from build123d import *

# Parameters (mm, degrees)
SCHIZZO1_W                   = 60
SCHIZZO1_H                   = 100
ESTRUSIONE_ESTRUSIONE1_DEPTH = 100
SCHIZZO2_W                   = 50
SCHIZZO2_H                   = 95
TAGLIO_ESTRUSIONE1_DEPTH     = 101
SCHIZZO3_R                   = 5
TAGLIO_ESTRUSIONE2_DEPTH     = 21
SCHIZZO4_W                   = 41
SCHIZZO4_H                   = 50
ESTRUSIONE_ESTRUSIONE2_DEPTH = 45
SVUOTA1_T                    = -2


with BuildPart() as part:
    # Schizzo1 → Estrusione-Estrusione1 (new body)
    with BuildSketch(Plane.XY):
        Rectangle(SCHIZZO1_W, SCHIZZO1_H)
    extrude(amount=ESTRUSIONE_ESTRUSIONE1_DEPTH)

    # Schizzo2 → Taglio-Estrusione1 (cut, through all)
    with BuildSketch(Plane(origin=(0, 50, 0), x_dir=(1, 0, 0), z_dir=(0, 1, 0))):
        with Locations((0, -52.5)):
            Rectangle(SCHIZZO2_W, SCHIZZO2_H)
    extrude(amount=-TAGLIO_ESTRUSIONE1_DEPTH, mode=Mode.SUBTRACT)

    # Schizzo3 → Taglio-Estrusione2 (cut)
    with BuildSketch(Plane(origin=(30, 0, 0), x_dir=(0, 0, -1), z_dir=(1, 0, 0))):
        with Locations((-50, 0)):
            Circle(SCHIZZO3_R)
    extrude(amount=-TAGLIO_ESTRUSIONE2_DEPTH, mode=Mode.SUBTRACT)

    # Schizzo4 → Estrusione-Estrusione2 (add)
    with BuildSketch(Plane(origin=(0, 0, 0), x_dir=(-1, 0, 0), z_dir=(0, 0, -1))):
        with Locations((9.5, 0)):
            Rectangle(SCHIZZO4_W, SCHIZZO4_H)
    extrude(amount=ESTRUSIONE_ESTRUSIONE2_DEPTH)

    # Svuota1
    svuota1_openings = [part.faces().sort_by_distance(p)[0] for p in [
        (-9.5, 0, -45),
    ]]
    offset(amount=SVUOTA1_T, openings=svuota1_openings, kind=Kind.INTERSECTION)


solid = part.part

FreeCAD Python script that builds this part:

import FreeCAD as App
import Part
import Sketcher
from FreeCAD import Vector


def faces_at(feature, points):
    """Names of the faces that lie closest to the given points."""
    faces = feature.Shape.Faces
    near = lambda p: min(range(len(faces)), key=lambda i: faces[i].distToShape(Part.Vertex(*p))[0])
    return sorted({f"Face{near(p) + 1}" for p in points})

doc = App.newDocument("Part")
params = doc.addObject("Spreadsheet::Sheet", "Params")
for row, (alias, value) in enumerate([
    ("sketch1_width", "60 mm"),
    ("sketch1_height", "100 mm"),
    ("pad1_length", "100 mm"),
    ("sketch2_width", "50 mm"),
    ("sketch2_height", "95 mm"),
    ("sketch3_diameter", "10 mm"),
    ("pocket2_length", "21 mm"),
    ("sketch4_width", "41 mm"),
    ("sketch4_height", "50 mm"),
    ("pad2_length", "45 mm"),
    ("thickness_wall", "2 mm"),
], start=1):
    params.set(f"A{row}", alias)
    params.set(f"B{row}", "=" + value)
    params.setAlias(f"B{row}", alias)

body = doc.addObject("PartDesign::Body", "Body")

sketch1 = body.newObject("Sketcher::SketchObject", "Sketch")
sketch1.AttachmentSupport = (doc.getObject("XY_Plane"), [""])
sketch1.MapMode = "FlatFace"
sketch1.addGeometry([
    Part.LineSegment(Vector(-30, 50, 0), Vector(-30, -50, 0)),
    Part.LineSegment(Vector(-30, -50, 0), Vector(30, -50, 0)),
    Part.LineSegment(Vector(30, -50, 0), Vector(30, 50, 0)),
    Part.LineSegment(Vector(30, 50, 0), Vector(-30, 50, 0)),
], False)
sketch1.addConstraint([
    Sketcher.Constraint("Coincident", 0, 2, 1, 1),
    Sketcher.Constraint("Coincident", 1, 2, 2, 1),
    Sketcher.Constraint("Coincident", 2, 2, 3, 1),
    Sketcher.Constraint("Coincident", 3, 2, 0, 1),
    Sketcher.Constraint("Vertical", 0),
    Sketcher.Constraint("Horizontal", 1),
    Sketcher.Constraint("Vertical", 2),
    Sketcher.Constraint("Horizontal", 3),
    Sketcher.Constraint("Symmetric", 0, 2, 2, 2, -1, 1),
    Sketcher.Constraint("DistanceX", 1, 1, 1, 2, 60.0),
    Sketcher.Constraint("DistanceY", 0, 2, 0, 1, 100.0),
])
sketch1.setExpression("Constraints[9]", "Params.sketch1_width")
sketch1.setExpression("Constraints[10]", "Params.sketch1_height")
pad1 = body.newObject("PartDesign::Pad", "Pad")
pad1.Profile = sketch1
pad1.setExpression("Length", "Params.pad1_length")

sketch2 = body.newObject("Sketcher::SketchObject", "Sketch001")
sketch2.AttachmentSupport = (doc.getObject("XZ_Plane"), [""])
sketch2.MapMode = "FlatFace"
sketch2.AttachmentOffset = App.Placement(Vector(0, 0, -50), App.Rotation())
sketch2.addGeometry([
    Part.LineSegment(Vector(-25, 5, 0), Vector(-25, 100, 0)),
    Part.LineSegment(Vector(-25, 100, 0), Vector(25, 100, 0)),
    Part.LineSegment(Vector(25, 100, 0), Vector(25, 5, 0)),
    Part.LineSegment(Vector(25, 5, 0), Vector(-25, 5, 0)),
], False)
sketch2.addConstraint([
    Sketcher.Constraint("Coincident", 0, 2, 1, 1),
    Sketcher.Constraint("Coincident", 1, 2, 2, 1),
    Sketcher.Constraint("Coincident", 2, 2, 3, 1),
    Sketcher.Constraint("Coincident", 3, 2, 0, 1),
    Sketcher.Constraint("Vertical", 0),
    Sketcher.Constraint("Horizontal", 1),
    Sketcher.Constraint("Vertical", 2),
    Sketcher.Constraint("Horizontal", 3),
    Sketcher.Constraint("DistanceX", 1, 1, 1, 2, 50.0),
    Sketcher.Constraint("DistanceY", 0, 1, 0, 2, 95.0),
    Sketcher.Constraint("DistanceX", 0, 2, -1, 1, 25.0),
    Sketcher.Constraint("DistanceY", -1, 1, 0, 2, 100.0),
])
sketch2.setExpression("Constraints[8]", "Params.sketch2_width")
sketch2.setExpression("Constraints[9]", "Params.sketch2_height")
pocket1 = body.newObject("PartDesign::Pocket", "Pocket")
pocket1.Profile = sketch2
pocket1.Type = "ThroughAll"
pocket1.Reversed = True

sketch3 = body.newObject("Sketcher::SketchObject", "Sketch002")
sketch3.AttachmentSupport = (doc.getObject("YZ_Plane"), [""])
sketch3.MapMode = "FlatFace"
sketch3.AttachmentOffset = App.Placement(Vector(0, 0, 30), App.Rotation())
sketch3.addGeometry(Part.Circle(Vector(0, 50, 0), Vector(0, 0, 1), 5), False)
sketch3.addConstraint([
    Sketcher.Constraint("PointOnObject", 0, 3, -2),
    Sketcher.Constraint("Diameter", 0, 10.0),
    Sketcher.Constraint("DistanceY", -1, 1, 0, 3, 50.0),
])
sketch3.setExpression("Constraints[1]", "Params.sketch3_diameter")
pocket2 = body.newObject("PartDesign::Pocket", "Pocket001")
pocket2.Profile = sketch3
pocket2.setExpression("Length", "Params.pocket2_length")

sketch4 = body.newObject("Sketcher::SketchObject", "Sketch003")
sketch4.AttachmentSupport = (doc.getObject("XY_Plane"), [""])
sketch4.MapMode = "FlatFace"
sketch4.addGeometry([
    Part.LineSegment(Vector(11, 25, 0), Vector(11, -25, 0)),
    Part.LineSegment(Vector(11, -25, 0), Vector(-30, -25, 0)),
    Part.LineSegment(Vector(-30, -25, 0), Vector(-30, 25, 0)),
    Part.LineSegment(Vector(-30, 25, 0), Vector(11, 25, 0)),
], False)
sketch4.addConstraint([
    Sketcher.Constraint("Coincident", 0, 2, 1, 1),
    Sketcher.Constraint("Coincident", 1, 2, 2, 1),
    Sketcher.Constraint("Coincident", 2, 2, 3, 1),
    Sketcher.Constraint("Coincident", 3, 2, 0, 1),
    Sketcher.Constraint("Vertical", 0),
    Sketcher.Constraint("Horizontal", 1),
    Sketcher.Constraint("Vertical", 2),
    Sketcher.Constraint("Horizontal", 3),
    Sketcher.Constraint("DistanceX", 1, 2, 1, 1, 41.0),
    Sketcher.Constraint("DistanceY", 0, 2, 0, 1, 50.0),
    Sketcher.Constraint("DistanceX", -1, 1, 0, 2, 11.0),
    Sketcher.Constraint("DistanceY", 0, 2, -1, 1, 25.0),
])
sketch4.setExpression("Constraints[8]", "Params.sketch4_width")
sketch4.setExpression("Constraints[9]", "Params.sketch4_height")
pad2 = body.newObject("PartDesign::Pad", "Pad001")
pad2.Profile = sketch4
pad2.setExpression("Length", "Params.pad2_length")
pad2.Reversed = True
doc.recompute()

thickness = body.newObject("PartDesign::Thickness", "Thickness")
thickness.Base = (pad2, faces_at(pad2, [(-9.5, 0, -45)]))
thickness.setExpression("Value", "Params.thickness_wall")
thickness.Reversed = True
thickness.Join = "Intersection"

doc.recompute()
